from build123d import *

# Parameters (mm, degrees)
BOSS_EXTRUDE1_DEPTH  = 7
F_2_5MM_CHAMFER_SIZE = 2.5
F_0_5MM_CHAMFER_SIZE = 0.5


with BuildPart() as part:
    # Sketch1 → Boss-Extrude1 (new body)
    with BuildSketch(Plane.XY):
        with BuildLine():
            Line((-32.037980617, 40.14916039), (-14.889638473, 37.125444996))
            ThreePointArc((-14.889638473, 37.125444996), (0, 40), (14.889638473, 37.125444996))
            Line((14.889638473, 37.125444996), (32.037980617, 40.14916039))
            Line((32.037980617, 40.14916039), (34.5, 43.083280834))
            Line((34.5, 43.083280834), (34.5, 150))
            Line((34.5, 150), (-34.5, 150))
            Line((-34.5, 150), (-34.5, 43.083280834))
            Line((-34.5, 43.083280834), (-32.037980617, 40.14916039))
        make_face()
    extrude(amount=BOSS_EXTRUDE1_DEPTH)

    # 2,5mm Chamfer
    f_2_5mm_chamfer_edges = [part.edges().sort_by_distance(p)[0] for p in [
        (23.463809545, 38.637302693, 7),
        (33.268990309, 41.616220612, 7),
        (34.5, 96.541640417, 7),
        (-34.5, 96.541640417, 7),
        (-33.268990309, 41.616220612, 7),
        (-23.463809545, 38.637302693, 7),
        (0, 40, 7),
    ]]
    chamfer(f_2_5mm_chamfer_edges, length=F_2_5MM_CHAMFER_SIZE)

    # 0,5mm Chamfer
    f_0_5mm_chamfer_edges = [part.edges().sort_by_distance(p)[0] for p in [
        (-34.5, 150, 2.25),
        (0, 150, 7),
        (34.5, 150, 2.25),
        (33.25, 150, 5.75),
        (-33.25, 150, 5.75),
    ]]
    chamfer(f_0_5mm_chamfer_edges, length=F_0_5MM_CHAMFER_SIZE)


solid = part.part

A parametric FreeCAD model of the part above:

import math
import FreeCAD as App
import Part
import Sketcher

V = App.Vector
Q = App.Units.Quantity


def edges_at(feature, points):
    """Names of the edges that pass closest to the given points."""
    edges = feature.Shape.Edges
    near = lambda p: min(range(len(edges)), key=lambda i: edges[i].distToShape(Part.Vertex(*p))[0])
    return sorted({f"Edge{near(p) + 1}" for p in points})

doc = App.newDocument("Part")
body = doc.addObject("PartDesign::Body", "Body")

sketch1 = doc.addObject("Sketcher::SketchObject", "Sketch")
body.addObject(sketch1)
sketch1.AttachmentSupport = (doc.XY_Plane, [""])
sketch1.MapMode = "FlatFace"
sketch1.addGeometry([
    Part.LineSegment(V(-32, 40.1, 0), V(-14.9, 37.1, 0)),
    Part.ArcOfCircle(Part.Circle(V(0, 0, 0), V(0, 0, 1), 40), math.radians(68), math.radians(112)),
    Part.LineSegment(V(14.9, 37.1, 0), V(32, 40.1, 0)),
    Part.LineSegment(V(32, 40.1, 0), V(34.5, 43.1, 0)),
    Part.LineSegment(V(34.5, 43.1, 0), V(34.5, 150, 0)),
    Part.LineSegment(V(34.5, 150, 0), V(-34.5, 150, 0)),
    Part.LineSegment(V(-34.5, 150, 0), V(-34.5, 43.1, 0)),
    Part.LineSegment(V(-34.5, 43.1, 0), V(-32, 40.1, 0)),
], False)
sketch1.addConstraint([
    Sketcher.Constraint("Coincident", 0, 2, 1, 2),
    Sketcher.Constraint("Coincident", 1, 1, 2, 1),
    Sketcher.Constraint("Coincident", 2, 2, 3, 1),
    Sketcher.Constraint("Coincident", 3, 2, 4, 1),
    Sketcher.Constraint("Coincident", 4, 2, 5, 1),
    Sketcher.Constraint("Coincident", 5, 2, 6, 1),
    Sketcher.Constraint("Coincident", 6, 2, 7, 1),
    Sketcher.Constraint("Coincident", 7, 2, 0, 1),
    Sketcher.Constraint("Vertical", 4),
    Sketcher.Constraint("Horizontal", 5),
    Sketcher.Constraint("Vertical", 6),
    Sketcher.Constraint("Coincident", 1, 3, -1, 1),
    Sketcher.Constraint("Symmetric", 3, 2, 6, 2, -2),
    Sketcher.Constraint("Symmetric", 2, 2, 7, 2, -2),
    Sketcher.Constraint("Horizontal", 0, 2, 1, 1),
    Sketcher.Constraint("Radius", 1, Q("40 mm")),
    Sketcher.Constraint("DistanceX", 5, 2, 5, 1, Q("69 mm")),
    Sketcher.Constraint("Angle", 0, Q("-10 deg")),
    Sketcher.Constraint("Angle", 3, Q("50 deg")),
    Sketcher.Constraint("DistanceY", -1, 1, 4, 2, Q("150 mm")),
    Sketcher.Constraint("DistanceY", 4, 1, 4, 2, Q("106.916719 mm")),
    Sketcher.Constraint("DistanceX", 0, 2, -1, 1, Q("14.889638 mm")),
])
pad1 = doc.addObject("PartDesign::Pad", "Pad")
body.addObject(pad1)
pad1.Profile = sketch1
pad1.Length = 7
doc.recompute()

chamfer = doc.addObject("PartDesign::Chamfer", "Chamfer")
body.addObject(chamfer)
chamfer.Base = (pad1, edges_at(pad1, [
    (23.464, 38.637, 7),
    (33.269, 41.616, 7),
    (34.5, 96.542, 7),
    (-34.5, 96.542, 7),
    (-33.269, 41.616, 7),
    (-23.464, 38.637, 7),
    (0, 40, 7),
]))
chamfer.Size = 2.5
doc.recompute()

chamfer2 = doc.addObject("PartDesign::Chamfer", "Chamfer001")
body.addObject(chamfer2)
chamfer2.Base = (chamfer, edges_at(chamfer, [
    (-34.5, 150, 2.25),
    (0, 150, 7),
    (34.5, 150, 2.25),
    (33.25, 150, 5.75),
    (-33.25, 150, 5.75),
]))
chamfer2.Size = 0.5

doc.recompute()
